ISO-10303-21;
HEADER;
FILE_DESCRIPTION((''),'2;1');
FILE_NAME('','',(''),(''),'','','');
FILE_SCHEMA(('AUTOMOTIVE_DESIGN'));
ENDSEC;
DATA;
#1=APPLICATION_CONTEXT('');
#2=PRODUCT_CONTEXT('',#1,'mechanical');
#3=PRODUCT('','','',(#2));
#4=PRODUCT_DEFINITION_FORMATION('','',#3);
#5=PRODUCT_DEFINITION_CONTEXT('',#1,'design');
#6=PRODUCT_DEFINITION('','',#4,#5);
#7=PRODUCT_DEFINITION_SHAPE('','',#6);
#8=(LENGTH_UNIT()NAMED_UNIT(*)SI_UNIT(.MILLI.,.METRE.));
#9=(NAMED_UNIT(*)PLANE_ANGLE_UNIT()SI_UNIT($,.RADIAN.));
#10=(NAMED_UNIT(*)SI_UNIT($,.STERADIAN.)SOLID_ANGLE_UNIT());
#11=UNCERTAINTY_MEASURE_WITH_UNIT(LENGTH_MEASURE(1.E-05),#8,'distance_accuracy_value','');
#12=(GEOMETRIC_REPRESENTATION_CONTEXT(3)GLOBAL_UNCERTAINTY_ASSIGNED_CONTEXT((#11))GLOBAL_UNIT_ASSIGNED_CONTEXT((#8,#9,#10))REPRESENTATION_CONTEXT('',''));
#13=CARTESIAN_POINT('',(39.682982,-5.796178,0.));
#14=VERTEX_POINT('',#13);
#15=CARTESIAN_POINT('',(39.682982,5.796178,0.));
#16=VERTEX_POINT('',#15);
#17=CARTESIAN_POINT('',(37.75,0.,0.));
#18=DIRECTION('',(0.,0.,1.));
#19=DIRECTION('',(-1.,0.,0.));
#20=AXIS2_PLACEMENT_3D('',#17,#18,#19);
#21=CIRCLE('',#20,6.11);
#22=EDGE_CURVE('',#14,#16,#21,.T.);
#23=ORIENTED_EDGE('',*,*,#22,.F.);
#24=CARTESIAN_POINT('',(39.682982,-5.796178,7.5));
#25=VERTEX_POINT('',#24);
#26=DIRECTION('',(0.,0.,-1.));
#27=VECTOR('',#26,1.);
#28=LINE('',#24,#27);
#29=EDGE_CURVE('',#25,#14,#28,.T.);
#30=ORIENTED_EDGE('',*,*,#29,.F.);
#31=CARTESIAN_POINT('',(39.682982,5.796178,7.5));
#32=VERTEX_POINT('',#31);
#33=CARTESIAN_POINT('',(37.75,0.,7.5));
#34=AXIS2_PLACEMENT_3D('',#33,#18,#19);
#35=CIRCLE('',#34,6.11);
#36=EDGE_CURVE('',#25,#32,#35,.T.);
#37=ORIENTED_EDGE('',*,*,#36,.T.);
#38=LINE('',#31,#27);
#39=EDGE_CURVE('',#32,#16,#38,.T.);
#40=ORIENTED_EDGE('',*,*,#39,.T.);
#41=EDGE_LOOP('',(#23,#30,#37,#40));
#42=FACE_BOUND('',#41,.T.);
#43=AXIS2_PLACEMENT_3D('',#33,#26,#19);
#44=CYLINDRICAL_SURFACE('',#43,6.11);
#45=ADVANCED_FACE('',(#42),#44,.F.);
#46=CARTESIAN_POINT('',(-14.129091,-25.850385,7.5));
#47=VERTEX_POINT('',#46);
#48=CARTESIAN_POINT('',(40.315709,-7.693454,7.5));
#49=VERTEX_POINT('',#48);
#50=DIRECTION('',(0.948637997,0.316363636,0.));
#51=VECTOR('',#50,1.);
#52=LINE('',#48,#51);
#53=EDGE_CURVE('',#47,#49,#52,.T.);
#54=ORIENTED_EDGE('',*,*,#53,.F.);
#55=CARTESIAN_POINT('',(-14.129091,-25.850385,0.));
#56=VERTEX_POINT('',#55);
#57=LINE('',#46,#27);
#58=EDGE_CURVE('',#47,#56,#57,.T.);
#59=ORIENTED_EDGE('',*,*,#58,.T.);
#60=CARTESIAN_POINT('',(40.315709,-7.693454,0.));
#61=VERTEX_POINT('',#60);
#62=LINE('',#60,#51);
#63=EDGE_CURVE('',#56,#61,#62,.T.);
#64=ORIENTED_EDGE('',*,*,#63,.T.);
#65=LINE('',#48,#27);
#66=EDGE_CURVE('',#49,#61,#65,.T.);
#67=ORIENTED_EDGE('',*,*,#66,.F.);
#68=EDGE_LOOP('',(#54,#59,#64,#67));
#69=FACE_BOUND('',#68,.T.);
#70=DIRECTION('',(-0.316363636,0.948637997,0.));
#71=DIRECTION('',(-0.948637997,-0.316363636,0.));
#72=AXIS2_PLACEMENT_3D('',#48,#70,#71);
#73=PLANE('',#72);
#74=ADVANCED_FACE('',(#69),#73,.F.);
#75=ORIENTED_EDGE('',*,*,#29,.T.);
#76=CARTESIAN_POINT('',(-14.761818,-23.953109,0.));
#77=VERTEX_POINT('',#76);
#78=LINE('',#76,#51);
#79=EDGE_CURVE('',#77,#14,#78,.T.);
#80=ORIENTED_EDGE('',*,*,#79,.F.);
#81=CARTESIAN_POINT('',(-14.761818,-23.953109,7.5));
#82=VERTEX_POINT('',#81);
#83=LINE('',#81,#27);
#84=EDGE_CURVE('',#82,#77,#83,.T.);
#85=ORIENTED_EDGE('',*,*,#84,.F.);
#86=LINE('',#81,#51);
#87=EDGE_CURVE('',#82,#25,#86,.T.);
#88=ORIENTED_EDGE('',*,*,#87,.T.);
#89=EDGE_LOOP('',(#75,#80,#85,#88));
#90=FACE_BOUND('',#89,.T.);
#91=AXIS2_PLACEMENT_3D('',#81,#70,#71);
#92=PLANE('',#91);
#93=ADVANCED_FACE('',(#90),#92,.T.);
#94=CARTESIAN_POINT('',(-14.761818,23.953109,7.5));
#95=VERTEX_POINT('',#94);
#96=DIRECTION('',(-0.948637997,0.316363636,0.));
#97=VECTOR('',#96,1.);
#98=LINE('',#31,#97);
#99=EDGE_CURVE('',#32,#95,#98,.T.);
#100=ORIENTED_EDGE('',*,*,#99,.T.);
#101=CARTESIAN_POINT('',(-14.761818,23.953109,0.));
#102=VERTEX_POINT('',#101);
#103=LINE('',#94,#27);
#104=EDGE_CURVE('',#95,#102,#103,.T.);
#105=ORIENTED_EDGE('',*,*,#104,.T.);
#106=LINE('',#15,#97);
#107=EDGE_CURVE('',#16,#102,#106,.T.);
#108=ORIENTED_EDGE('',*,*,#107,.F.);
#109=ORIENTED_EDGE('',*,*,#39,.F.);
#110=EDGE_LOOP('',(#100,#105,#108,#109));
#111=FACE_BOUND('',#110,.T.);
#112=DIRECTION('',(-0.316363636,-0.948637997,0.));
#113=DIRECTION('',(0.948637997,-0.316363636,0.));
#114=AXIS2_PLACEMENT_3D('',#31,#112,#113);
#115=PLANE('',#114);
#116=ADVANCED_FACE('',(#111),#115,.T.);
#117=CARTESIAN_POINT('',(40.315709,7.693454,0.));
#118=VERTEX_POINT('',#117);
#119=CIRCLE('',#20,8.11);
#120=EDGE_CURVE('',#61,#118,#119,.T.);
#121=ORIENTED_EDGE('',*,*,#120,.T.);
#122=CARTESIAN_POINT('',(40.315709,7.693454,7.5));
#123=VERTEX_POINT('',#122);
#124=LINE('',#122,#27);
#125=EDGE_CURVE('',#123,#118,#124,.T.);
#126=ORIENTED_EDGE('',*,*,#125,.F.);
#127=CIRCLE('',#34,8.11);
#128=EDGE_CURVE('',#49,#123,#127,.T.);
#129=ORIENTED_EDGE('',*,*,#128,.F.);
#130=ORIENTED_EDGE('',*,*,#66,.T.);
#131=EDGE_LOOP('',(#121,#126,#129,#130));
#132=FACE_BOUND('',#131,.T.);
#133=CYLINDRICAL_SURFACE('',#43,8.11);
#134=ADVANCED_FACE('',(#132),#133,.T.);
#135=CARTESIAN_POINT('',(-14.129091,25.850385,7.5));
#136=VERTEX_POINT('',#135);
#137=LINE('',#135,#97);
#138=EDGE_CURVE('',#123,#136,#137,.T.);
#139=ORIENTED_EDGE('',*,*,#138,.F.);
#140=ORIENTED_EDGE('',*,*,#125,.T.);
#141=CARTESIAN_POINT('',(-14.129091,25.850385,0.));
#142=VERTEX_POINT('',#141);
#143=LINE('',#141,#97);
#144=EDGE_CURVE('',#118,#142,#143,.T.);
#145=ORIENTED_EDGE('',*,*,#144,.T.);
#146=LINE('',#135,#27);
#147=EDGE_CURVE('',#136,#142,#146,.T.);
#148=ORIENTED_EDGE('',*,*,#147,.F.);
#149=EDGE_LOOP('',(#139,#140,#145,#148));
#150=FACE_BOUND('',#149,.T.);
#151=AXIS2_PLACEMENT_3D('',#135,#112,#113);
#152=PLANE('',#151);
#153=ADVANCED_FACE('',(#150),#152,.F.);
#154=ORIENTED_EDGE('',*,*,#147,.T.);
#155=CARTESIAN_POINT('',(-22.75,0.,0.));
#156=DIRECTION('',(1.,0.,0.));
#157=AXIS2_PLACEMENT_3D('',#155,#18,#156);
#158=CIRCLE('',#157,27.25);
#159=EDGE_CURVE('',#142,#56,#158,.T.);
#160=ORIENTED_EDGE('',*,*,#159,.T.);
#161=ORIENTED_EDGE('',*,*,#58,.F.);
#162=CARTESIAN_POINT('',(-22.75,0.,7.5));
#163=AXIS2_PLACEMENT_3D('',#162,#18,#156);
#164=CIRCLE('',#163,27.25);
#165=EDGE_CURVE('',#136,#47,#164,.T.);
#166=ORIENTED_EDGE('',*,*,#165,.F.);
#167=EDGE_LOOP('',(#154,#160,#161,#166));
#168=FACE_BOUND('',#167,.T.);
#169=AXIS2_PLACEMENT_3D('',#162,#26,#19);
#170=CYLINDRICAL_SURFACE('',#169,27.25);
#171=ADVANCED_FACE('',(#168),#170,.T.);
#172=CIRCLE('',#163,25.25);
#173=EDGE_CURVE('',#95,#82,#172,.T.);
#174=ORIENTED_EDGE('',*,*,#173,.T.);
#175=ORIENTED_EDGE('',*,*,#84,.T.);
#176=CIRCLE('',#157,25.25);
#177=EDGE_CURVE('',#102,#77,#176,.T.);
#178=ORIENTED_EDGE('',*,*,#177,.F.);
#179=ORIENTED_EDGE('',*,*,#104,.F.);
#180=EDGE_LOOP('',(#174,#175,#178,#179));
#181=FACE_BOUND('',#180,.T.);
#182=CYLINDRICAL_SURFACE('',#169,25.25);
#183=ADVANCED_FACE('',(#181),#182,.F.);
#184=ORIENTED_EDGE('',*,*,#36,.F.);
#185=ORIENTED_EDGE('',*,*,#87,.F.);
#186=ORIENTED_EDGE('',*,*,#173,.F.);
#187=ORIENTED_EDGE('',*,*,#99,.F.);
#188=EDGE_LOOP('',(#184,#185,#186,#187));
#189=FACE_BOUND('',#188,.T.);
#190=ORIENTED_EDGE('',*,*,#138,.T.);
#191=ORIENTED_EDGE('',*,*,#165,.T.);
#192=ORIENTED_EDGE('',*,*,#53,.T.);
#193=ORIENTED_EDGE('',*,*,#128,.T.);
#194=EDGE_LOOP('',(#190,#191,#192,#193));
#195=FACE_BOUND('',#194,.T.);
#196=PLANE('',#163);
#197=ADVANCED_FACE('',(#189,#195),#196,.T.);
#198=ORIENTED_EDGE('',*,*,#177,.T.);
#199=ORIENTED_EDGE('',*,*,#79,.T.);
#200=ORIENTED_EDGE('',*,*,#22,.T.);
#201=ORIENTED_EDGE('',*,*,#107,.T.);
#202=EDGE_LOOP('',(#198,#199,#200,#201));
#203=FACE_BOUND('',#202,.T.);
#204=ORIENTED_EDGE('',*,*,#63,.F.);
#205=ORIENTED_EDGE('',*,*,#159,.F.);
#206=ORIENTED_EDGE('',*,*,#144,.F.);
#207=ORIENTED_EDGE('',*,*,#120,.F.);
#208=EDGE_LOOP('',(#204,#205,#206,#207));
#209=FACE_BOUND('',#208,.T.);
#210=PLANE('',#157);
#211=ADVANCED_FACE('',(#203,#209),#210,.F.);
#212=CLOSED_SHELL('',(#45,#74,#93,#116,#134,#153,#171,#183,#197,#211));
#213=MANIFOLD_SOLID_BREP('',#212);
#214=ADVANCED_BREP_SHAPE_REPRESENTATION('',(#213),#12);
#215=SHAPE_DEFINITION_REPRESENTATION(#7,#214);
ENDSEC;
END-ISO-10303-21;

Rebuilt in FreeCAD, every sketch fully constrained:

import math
import FreeCAD as App
import Part
import Sketcher
from FreeCAD import Vector

doc = App.newDocument("Part")
params = doc.addObject("Spreadsheet::Sheet", "Params")
for row, (alias, value) in enumerate([
    ("sketch1_radius", "27.25 mm"),
    ("sketch1_radius2", "8.11 mm"),
    ("sketch1_radius3", "6.11 mm"),
    ("pad1_length", "7.5 mm"),
], start=1):
    params.set(f"A{row}", alias)
    params.set(f"B{row}", "=" + value)
    params.setAlias(f"B{row}", alias)

body = doc.addObject("PartDesign::Body", "Body")

# Sketch on XY plane
sketch1 = doc.addObject("Sketcher::SketchObject", "Sketch")
body.addObject(sketch1)
sketch1.AttachmentSupport = (doc.XY_Plane, [""])
sketch1.MapMode = "FlatFace"
sketch1.addGeometry([
    Part.LineSegment(Vector(40.315709, 7.693454, 0), Vector(-14.129091, 25.850385, 0)),  # 0
    Part.ArcOfCircle(Part.Circle(Vector(-22.75, 0, 0), Vector(0, 0, 1), 27.25), math.radians(71.556845), math.radians(288.443155)),  # 1
    Part.LineSegment(Vector(-14.129091, -25.850385, 0), Vector(40.315709, -7.693454, 0)),  # 2
    Part.ArcOfCircle(Part.Circle(Vector(37.75, 0, 0), Vector(0, 0, 1), 8.11), math.radians(-71.556845), math.radians(71.556845)),  # 3
    Part.ArcOfCircle(Part.Circle(Vector(37.75, 0, 0), Vector(0, 0, 1), 6.11), math.radians(-71.556845), math.radians(71.556845)),  # 4
    Part.LineSegment(Vector(39.682982, -5.796178, 0), Vector(-14.761818, -23.953109, 0)),  # 5
    Part.ArcOfCircle(Part.Circle(Vector(-22.75, 0, 0), Vector(0, 0, 1), 25.25), math.radians(71.556845), math.radians(288.443155)),  # 6
    Part.LineSegment(Vector(-14.761818, 23.953109, 0), Vector(39.682982, 5.796178, 0)),  # 7
], False)
sketch1.addConstraint([
    Sketcher.Constraint("Tangent", 0, 2, 1, 1),
    Sketcher.Constraint("Tangent", 1, 2, 2, 1),
    Sketcher.Constraint("Tangent", 2, 2, 3, 1),
    Sketcher.Constraint("Tangent", 3, 2, 0, 1),
    Sketcher.Constraint("Tangent", 4, 1, 5, 1),
    Sketcher.Constraint("Tangent", 5, 2, 6, 2),
    Sketcher.Constraint("Tangent", 6, 1, 7, 1),
    Sketcher.Constraint("Tangent", 7, 2, 4, 2),
    Sketcher.Constraint("Coincident", 4, 3, 3, 3),
    Sketcher.Constraint("Coincident", 6, 3, 1, 3),
    Sketcher.Constraint("Symmetric", 0, 2, 1, 2, -1),
    Sketcher.Constraint("Parallel", 2, 5),
    Sketcher.Constraint("Radius", 1, 27.25),
    Sketcher.Constraint("Radius", 3, 8.11),
    Sketcher.Constraint("Radius", 4, 6.11),
    Sketcher.Constraint("DistanceX", 1, 3, 3, 3, 60.5),
    Sketcher.Constraint("DistanceX", 1, 3, -1, 1, 22.75),
])
sketch1.setExpression("Constraints[12]", "Params.sketch1_radius")
sketch1.setExpression("Constraints[13]", "Params.sketch1_radius2")
sketch1.setExpression("Constraints[14]", "Params.sketch1_radius3")
pad1 = doc.addObject("PartDesign::Pad", "Pad")
body.addObject(pad1)
pad1.Profile = sketch1
pad1.setExpression("Length", "Params.pad1_length")

doc.recompute()
